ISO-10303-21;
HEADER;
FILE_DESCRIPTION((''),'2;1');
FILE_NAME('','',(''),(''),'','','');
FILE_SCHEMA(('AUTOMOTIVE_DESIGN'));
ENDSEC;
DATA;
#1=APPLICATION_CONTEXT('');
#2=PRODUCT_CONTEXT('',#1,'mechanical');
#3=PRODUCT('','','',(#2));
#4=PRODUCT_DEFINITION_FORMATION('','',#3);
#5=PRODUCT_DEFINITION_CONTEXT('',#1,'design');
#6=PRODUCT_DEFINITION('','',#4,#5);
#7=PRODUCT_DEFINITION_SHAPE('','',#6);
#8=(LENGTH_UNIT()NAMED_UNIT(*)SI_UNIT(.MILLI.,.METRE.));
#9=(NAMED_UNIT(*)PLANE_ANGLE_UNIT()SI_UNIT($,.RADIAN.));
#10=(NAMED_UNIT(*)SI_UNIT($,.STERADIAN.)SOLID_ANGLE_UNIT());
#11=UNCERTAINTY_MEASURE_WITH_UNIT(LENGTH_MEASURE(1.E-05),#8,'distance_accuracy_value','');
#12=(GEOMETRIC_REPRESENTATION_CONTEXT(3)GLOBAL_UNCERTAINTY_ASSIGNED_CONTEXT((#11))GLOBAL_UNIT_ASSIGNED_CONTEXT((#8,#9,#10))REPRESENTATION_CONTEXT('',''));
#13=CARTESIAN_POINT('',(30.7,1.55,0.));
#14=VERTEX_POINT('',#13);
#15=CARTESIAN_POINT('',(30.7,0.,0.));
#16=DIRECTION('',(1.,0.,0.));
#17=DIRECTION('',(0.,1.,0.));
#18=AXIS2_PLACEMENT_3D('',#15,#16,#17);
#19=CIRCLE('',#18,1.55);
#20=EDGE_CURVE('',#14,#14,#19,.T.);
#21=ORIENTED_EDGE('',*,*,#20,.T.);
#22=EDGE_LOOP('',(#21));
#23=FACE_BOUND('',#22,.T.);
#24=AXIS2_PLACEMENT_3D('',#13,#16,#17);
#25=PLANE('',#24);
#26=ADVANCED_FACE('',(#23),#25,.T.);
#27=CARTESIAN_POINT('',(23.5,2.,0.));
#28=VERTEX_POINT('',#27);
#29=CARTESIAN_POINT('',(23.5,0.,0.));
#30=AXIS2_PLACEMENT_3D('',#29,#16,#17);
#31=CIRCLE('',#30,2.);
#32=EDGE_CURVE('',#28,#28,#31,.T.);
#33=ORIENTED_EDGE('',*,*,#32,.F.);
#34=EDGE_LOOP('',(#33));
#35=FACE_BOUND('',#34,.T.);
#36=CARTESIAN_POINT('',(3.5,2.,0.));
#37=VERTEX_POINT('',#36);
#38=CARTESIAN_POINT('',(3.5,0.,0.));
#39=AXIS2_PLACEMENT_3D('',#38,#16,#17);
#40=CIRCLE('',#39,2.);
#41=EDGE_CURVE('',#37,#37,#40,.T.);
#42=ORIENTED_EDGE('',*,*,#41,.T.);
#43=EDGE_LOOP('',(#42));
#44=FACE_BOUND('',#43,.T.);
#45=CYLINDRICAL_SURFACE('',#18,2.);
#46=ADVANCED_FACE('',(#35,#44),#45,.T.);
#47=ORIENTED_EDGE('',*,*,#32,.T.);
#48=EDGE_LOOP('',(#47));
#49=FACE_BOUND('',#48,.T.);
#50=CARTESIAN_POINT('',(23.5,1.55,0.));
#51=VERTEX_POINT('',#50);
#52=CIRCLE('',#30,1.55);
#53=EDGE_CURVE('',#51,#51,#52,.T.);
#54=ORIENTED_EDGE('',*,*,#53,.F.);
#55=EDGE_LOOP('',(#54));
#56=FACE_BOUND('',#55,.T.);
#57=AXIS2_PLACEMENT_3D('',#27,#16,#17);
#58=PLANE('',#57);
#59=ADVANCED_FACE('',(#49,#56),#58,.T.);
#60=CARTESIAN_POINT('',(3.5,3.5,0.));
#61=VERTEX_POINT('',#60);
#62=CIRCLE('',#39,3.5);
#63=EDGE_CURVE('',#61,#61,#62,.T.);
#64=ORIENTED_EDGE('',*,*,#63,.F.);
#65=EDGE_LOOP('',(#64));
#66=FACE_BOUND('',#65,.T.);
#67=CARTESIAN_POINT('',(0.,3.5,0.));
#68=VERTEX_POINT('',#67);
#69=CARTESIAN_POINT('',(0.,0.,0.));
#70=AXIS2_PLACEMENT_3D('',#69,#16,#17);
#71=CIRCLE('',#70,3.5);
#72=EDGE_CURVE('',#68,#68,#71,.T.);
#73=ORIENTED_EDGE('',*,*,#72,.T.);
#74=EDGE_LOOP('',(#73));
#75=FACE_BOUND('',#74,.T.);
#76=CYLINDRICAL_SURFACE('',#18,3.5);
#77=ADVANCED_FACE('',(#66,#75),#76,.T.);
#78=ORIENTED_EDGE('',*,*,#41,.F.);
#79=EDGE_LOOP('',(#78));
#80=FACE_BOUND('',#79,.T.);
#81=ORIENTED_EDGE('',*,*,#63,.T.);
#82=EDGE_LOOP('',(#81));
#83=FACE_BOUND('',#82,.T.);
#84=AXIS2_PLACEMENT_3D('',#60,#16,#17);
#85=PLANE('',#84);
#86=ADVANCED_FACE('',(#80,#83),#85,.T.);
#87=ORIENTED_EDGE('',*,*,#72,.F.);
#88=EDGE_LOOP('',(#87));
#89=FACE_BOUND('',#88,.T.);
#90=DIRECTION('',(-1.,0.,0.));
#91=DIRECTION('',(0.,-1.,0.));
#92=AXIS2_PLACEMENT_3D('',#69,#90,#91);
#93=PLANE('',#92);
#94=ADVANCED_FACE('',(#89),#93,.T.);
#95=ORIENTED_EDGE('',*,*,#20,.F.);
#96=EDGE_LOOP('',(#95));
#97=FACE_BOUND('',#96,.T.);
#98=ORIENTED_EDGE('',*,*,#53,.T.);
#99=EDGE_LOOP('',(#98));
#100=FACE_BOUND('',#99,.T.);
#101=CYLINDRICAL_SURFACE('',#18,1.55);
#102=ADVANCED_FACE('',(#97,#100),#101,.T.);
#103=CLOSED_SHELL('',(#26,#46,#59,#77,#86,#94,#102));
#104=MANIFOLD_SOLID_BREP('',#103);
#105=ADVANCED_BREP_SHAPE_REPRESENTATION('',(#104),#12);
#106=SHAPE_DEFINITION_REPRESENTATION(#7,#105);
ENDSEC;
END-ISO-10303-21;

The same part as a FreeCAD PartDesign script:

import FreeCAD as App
import Part
import Sketcher
from FreeCAD import Vector
Q = App.Units.Quantity


def add_polygon(sketch, points):
    """Adds a closed chain of lines whose ends are joined by coincident constraints."""
    first, n = sketch.GeometryCount, len(points)
    for a, b in zip(points, points[1:] + points[:1]):
        sketch.addGeometry(Part.LineSegment(App.Vector(*a, 0), App.Vector(*b, 0)), False)
    for i in range(n):
        sketch.addConstraint(Sketcher.Constraint("Coincident", first + i, 2, first + (i + 1) % n, 1))

doc = App.newDocument("Part")
params = doc.addObject("Spreadsheet::Sheet", "Params")
for row, (alias, value) in enumerate([
    ("sketch1_width", "20 mm"),
    ("sketch1_width2", "30.7 mm"),
    ("sketch1_width3", "7.2 mm"),
    ("sketch1_height", "1.5 mm"),
    ("sketch1_height2", "1.55 mm"),
    ("revolution_angle", "360 deg"),
], start=1):
    params.set(f"A{row}", alias)
    params.set(f"B{row}", "=" + value)
    params.setAlias(f"B{row}", alias)

body = doc.addObject("PartDesign::Body", "Body")

# Sketch on XY plane
sketch1 = body.newObject("Sketcher::SketchObject", "Sketch")
sketch1.AttachmentSupport = (doc.getObject("XY_Plane"), [""])
sketch1.MapMode = "FlatFace"
add_polygon(sketch1, [(0, 3.5), (0, 0), (30.7, 0), (30.7, 1.55), (23.5, 1.55), (23.5, 2), (3.5, 2), (3.5, 3.5)])  # lines 0-7
sketch1.addConstraint([
    Sketcher.Constraint("Vertical", 0),
    Sketcher.Constraint("Horizontal", 1),
    Sketcher.Constraint("Vertical", 2),
    Sketcher.Constraint("Horizontal", 3),
    Sketcher.Constraint("Vertical", 4),
    Sketcher.Constraint("Horizontal", 5),
    Sketcher.Constraint("Vertical", 6),
    Sketcher.Constraint("Horizontal", 7),
    Sketcher.Constraint("Coincident", 0, 2, -1, 1),
    Sketcher.Constraint("Equal", 7, 0),
    Sketcher.Constraint("DistanceX", 5, 2, 5, 1, Q("20 mm")),
    Sketcher.Constraint("DistanceX", 1, 1, 1, 2, Q("30.7 mm")),
    Sketcher.Constraint("DistanceX", 3, 2, 3, 1, Q("7.2 mm")),
    Sketcher.Constraint("DistanceY", 6, 1, 6, 2, Q("1.5 mm")),
    Sketcher.Constraint("DistanceY", 2, 1, 2, 2, Q("1.55 mm")),
])
sketch1.setExpression("Constraints[18]", "Params.sketch1_width")
sketch1.setExpression("Constraints[19]", "Params.sketch1_width2")
sketch1.setExpression("Constraints[20]", "Params.sketch1_width3")
sketch1.setExpression("Constraints[21]", "Params.sketch1_height")
sketch1.setExpression("Constraints[22]", "Params.sketch1_height2")
revolution = body.newObject("PartDesign::Revolution", "Revolution")
revolution.Profile = sketch1
revolution.ReferenceAxis = (sketch1, ["H_Axis"])
revolution.setExpression("Angle", "Params.revolution_angle")

doc.recompute()
